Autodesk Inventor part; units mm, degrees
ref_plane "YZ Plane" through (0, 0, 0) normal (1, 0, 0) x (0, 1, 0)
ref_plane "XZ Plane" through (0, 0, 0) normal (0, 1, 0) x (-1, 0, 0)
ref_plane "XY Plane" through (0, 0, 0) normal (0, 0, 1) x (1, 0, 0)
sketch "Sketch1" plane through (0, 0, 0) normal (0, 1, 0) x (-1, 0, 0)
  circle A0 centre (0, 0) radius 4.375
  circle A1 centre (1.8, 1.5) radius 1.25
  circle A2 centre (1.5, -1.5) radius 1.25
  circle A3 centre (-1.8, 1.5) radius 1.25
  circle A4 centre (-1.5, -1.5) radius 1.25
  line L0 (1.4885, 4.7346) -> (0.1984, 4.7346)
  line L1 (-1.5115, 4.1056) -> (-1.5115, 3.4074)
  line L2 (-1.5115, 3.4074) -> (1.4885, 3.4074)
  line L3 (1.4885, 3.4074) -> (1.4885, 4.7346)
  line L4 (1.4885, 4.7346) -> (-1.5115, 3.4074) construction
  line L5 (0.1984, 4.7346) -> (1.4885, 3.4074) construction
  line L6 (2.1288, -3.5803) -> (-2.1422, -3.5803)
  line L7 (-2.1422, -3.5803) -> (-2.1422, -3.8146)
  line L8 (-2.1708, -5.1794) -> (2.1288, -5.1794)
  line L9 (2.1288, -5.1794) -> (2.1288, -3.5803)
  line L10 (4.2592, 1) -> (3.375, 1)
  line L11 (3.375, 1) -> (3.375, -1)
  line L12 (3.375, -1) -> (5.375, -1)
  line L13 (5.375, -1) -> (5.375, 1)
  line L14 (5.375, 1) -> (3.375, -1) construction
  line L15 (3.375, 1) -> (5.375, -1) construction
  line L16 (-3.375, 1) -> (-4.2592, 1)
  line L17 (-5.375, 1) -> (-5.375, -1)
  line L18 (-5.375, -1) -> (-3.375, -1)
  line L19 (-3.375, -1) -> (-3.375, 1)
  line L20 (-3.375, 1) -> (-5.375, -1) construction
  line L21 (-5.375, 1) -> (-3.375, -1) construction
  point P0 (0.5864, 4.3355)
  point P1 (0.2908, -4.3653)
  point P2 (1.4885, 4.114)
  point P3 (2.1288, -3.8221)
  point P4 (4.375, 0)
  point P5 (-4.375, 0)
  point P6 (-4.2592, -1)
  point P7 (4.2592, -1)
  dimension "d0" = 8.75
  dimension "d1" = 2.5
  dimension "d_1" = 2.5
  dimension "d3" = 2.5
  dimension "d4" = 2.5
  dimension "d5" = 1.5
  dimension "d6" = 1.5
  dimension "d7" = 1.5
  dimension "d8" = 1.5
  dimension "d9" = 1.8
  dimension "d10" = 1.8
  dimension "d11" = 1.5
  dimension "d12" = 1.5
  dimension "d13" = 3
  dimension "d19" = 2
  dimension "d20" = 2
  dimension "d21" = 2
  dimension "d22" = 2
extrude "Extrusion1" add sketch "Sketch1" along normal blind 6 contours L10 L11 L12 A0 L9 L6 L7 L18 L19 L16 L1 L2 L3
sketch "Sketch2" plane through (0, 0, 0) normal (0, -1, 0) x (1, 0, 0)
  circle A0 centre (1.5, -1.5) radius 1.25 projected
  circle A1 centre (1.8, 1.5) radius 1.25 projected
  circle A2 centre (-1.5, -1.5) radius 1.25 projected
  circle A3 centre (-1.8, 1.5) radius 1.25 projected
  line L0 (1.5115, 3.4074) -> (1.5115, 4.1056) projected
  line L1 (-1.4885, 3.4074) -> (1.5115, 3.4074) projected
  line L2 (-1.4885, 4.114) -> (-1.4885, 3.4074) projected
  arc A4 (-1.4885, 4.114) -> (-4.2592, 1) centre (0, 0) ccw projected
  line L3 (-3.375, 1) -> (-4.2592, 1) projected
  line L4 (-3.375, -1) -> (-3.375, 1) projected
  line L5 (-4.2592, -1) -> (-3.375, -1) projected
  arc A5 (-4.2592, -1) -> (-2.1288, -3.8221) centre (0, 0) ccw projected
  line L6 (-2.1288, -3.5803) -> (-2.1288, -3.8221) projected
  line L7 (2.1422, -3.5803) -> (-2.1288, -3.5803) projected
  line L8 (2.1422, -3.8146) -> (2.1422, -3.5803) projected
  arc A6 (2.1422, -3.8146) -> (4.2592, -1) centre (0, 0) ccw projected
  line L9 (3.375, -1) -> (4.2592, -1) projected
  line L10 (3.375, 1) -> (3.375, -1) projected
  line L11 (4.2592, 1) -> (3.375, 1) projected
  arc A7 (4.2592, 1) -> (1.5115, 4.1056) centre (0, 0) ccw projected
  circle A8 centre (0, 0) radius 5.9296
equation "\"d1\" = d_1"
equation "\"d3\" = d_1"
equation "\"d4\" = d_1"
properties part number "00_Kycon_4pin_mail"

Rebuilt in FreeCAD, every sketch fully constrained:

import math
import FreeCAD as App
import Part
import Sketcher
from FreeCAD import Vector
Q = App.Units.Quantity

doc = App.newDocument("Part")
body = doc.addObject("PartDesign::Body", "Body")

# Sketch on XZ plane
sketch1 = doc.addObject("Sketcher::SketchObject", "Sketch")
body.addObject(sketch1)
sketch1.AttachmentSupport = (doc.XZ_Plane, [""])
sketch1.MapMode = "FlatFace"
sketch1.addGeometry([
    Part.LineSegment(Vector(-3.38, 1, 0), Vector(-4.26, 1, 0)),  # 0
    Part.ArcOfCircle(Part.Circle(Vector(0, 0, 0), Vector(0, 0, 1), 4.38), math.radians(110), math.radians(167)),  # 1
    Part.LineSegment(Vector(-1.49, 4.11, 0), Vector(-1.49, 3.41, 0)),  # 2
    Part.LineSegment(Vector(-1.49, 3.41, 0), Vector(1.51, 3.41, 0)),  # 3
    Part.LineSegment(Vector(1.51, 3.41, 0), Vector(1.51, 4.11, 0)),  # 4
    Part.ArcOfCircle(Part.Circle(Vector(0, 0, 0), Vector(0, 0, 1), 4.38), math.radians(13), math.radians(70)),  # 5
    Part.LineSegment(Vector(4.26, 1, 0), Vector(3.38, 1, 0)),  # 6
    Part.LineSegment(Vector(3.38, 1, 0), Vector(3.38, -1, 0)),  # 7
    Part.LineSegment(Vector(3.38, -1, 0), Vector(4.26, -1, 0)),  # 8
    Part.ArcOfCircle(Part.Circle(Vector(0, 0, 0), Vector(0, 0, 1), 4.38), math.radians(-61), math.radians(-13)),  # 9
    Part.LineSegment(Vector(2.14, -3.81, 0), Vector(2.14, -3.58, 0)),  # 10
    Part.LineSegment(Vector(2.14, -3.58, 0), Vector(-2.13, -3.58, 0)),  # 11
    Part.LineSegment(Vector(-2.13, -3.58, 0), Vector(-2.13, -3.82, 0)),  # 12
    Part.ArcOfCircle(Part.Circle(Vector(0, 0, 0), Vector(0, 0, 1), 4.38), math.radians(-167), math.radians(-119)),  # 13
    Part.LineSegment(Vector(-4.26, -1, 0), Vector(-3.38, -1, 0)),  # 14
    Part.LineSegment(Vector(-3.38, -1, 0), Vector(-3.38, 1, 0)),  # 15
    Part.Circle(Vector(1.5, -1.5, 0), Vector(0, 0, 1), 1.25),  # 16
    Part.Circle(Vector(-1.5, -1.5, 0), Vector(0, 0, 1), 1.25),  # 17
    Part.Circle(Vector(1.8, 1.5, 0), Vector(0, 0, 1), 1.25),  # 18
    Part.Circle(Vector(-1.8, 1.5, 0), Vector(0, 0, 1), 1.25),  # 19
], False)
sketch1.addConstraint([
    Sketcher.Constraint("Coincident", 0, 2, 1, 2),
    Sketcher.Constraint("Coincident", 1, 1, 2, 1),
    Sketcher.Constraint("Coincident", 2, 2, 3, 1),
    Sketcher.Constraint("Coincident", 3, 2, 4, 1),
    Sketcher.Constraint("Coincident", 4, 2, 5, 2),
    Sketcher.Constraint("Coincident", 5, 1, 6, 1),
    Sketcher.Constraint("Coincident", 6, 2, 7, 1),
    Sketcher.Constraint("Coincident", 7, 2, 8, 1),
    Sketcher.Constraint("Coincident", 8, 2, 9, 2),
    Sketcher.Constraint("Coincident", 9, 1, 10, 1),
    Sketcher.Constraint("Coincident", 10, 2, 11, 1),
    Sketcher.Constraint("Coincident", 11, 2, 12, 1),
    Sketcher.Constraint("Coincident", 12, 2, 13, 2),
    Sketcher.Constraint("Coincident", 13, 1, 14, 1),
    Sketcher.Constraint("Coincident", 14, 2, 15, 1),
    Sketcher.Constraint("Coincident", 15, 2, 0, 1),
    Sketcher.Constraint("Horizontal", 0),
    Sketcher.Constraint("Vertical", 2),
    Sketcher.Constraint("Horizontal", 3),
    Sketcher.Constraint("Vertical", 4),
    Sketcher.Constraint("Horizontal", 6),
    Sketcher.Constraint("Vertical", 7),
    Sketcher.Constraint("Horizontal", 8),
    Sketcher.Constraint("Vertical", 10),
    Sketcher.Constraint("Horizontal", 11),
    Sketcher.Constraint("Vertical", 12),
    Sketcher.Constraint("Horizontal", 14),
    Sketcher.Constraint("Vertical", 15),
    Sketcher.Constraint("Coincident", 1, 3, -1, 1),
    Sketcher.Constraint("Coincident", 5, 3, -1, 1),
    Sketcher.Constraint("Coincident", 9, 3, -1, 1),
    Sketcher.Constraint("Coincident", 13, 3, -1, 1),
    Sketcher.Constraint("Equal", 1, 5),
    Sketcher.Constraint("Equal", 5, 9),
    Sketcher.Constraint("Equal", 9, 13),
    Sketcher.Constraint("Equal", 16, 17),
    Sketcher.Constraint("Equal", 17, 18),
    Sketcher.Constraint("Equal", 18, 19),
    Sketcher.Constraint("Symmetric", 6, 2, 14, 2, -1, 1),
    Sketcher.Constraint("Symmetric", 16, 3, 17, 3, -2),
    Sketcher.Constraint("Symmetric", 18, 3, 19, 3, -2),
    Sketcher.Constraint("Horizontal", 0, 2, 5, 1),
    Sketcher.Constraint("Horizontal", 8, 2, 13, 1),
    Sketcher.Constraint("Diameter", 16, Q("2.5 mm")),
    Sketcher.Constraint("DistanceX", 3, 1, 3, 2, Q("3 mm")),
    Sketcher.Constraint("DistanceY", 7, 2, 7, 1, Q("2 mm")),
    Sketcher.Constraint("Radius", 1, Q("4.375 mm")),
    Sketcher.Constraint("DistanceX", 17, 3, 16, 3, Q("3 mm")),
    Sketcher.Constraint("DistanceY", 16, 3, 18, 3, Q("3 mm")),
    Sketcher.Constraint("DistanceY", 16, 3, -1, 1, Q("1.5 mm")),
    Sketcher.Constraint("DistanceX", -1, 1, 18, 3, Q("1.8 mm")),
    Sketcher.Constraint("DistanceX", 11, 2, 11, 1, Q("4.271 mm")),
    Sketcher.Constraint("DistanceX", 0, 2, 0, 1, Q("0.8842 mm")),
    Sketcher.Constraint("DistanceY", 2, 2, 2, 1, Q("0.7066 mm")),
    Sketcher.Constraint("DistanceY", 4, 1, 4, 2, Q("0.6982 mm")),
    Sketcher.Constraint("DistanceY", 10, 1, 10, 2, Q("0.2343 mm")),
    Sketcher.Constraint("DistanceY", 12, 2, 12, 1, Q("0.2419 mm")),
])
pad1 = doc.addObject("PartDesign::Pad", "Pad")
body.addObject(pad1)
pad1.Profile = sketch1
pad1.Length = 6
pad1.Reversed = True

doc.recompute()
